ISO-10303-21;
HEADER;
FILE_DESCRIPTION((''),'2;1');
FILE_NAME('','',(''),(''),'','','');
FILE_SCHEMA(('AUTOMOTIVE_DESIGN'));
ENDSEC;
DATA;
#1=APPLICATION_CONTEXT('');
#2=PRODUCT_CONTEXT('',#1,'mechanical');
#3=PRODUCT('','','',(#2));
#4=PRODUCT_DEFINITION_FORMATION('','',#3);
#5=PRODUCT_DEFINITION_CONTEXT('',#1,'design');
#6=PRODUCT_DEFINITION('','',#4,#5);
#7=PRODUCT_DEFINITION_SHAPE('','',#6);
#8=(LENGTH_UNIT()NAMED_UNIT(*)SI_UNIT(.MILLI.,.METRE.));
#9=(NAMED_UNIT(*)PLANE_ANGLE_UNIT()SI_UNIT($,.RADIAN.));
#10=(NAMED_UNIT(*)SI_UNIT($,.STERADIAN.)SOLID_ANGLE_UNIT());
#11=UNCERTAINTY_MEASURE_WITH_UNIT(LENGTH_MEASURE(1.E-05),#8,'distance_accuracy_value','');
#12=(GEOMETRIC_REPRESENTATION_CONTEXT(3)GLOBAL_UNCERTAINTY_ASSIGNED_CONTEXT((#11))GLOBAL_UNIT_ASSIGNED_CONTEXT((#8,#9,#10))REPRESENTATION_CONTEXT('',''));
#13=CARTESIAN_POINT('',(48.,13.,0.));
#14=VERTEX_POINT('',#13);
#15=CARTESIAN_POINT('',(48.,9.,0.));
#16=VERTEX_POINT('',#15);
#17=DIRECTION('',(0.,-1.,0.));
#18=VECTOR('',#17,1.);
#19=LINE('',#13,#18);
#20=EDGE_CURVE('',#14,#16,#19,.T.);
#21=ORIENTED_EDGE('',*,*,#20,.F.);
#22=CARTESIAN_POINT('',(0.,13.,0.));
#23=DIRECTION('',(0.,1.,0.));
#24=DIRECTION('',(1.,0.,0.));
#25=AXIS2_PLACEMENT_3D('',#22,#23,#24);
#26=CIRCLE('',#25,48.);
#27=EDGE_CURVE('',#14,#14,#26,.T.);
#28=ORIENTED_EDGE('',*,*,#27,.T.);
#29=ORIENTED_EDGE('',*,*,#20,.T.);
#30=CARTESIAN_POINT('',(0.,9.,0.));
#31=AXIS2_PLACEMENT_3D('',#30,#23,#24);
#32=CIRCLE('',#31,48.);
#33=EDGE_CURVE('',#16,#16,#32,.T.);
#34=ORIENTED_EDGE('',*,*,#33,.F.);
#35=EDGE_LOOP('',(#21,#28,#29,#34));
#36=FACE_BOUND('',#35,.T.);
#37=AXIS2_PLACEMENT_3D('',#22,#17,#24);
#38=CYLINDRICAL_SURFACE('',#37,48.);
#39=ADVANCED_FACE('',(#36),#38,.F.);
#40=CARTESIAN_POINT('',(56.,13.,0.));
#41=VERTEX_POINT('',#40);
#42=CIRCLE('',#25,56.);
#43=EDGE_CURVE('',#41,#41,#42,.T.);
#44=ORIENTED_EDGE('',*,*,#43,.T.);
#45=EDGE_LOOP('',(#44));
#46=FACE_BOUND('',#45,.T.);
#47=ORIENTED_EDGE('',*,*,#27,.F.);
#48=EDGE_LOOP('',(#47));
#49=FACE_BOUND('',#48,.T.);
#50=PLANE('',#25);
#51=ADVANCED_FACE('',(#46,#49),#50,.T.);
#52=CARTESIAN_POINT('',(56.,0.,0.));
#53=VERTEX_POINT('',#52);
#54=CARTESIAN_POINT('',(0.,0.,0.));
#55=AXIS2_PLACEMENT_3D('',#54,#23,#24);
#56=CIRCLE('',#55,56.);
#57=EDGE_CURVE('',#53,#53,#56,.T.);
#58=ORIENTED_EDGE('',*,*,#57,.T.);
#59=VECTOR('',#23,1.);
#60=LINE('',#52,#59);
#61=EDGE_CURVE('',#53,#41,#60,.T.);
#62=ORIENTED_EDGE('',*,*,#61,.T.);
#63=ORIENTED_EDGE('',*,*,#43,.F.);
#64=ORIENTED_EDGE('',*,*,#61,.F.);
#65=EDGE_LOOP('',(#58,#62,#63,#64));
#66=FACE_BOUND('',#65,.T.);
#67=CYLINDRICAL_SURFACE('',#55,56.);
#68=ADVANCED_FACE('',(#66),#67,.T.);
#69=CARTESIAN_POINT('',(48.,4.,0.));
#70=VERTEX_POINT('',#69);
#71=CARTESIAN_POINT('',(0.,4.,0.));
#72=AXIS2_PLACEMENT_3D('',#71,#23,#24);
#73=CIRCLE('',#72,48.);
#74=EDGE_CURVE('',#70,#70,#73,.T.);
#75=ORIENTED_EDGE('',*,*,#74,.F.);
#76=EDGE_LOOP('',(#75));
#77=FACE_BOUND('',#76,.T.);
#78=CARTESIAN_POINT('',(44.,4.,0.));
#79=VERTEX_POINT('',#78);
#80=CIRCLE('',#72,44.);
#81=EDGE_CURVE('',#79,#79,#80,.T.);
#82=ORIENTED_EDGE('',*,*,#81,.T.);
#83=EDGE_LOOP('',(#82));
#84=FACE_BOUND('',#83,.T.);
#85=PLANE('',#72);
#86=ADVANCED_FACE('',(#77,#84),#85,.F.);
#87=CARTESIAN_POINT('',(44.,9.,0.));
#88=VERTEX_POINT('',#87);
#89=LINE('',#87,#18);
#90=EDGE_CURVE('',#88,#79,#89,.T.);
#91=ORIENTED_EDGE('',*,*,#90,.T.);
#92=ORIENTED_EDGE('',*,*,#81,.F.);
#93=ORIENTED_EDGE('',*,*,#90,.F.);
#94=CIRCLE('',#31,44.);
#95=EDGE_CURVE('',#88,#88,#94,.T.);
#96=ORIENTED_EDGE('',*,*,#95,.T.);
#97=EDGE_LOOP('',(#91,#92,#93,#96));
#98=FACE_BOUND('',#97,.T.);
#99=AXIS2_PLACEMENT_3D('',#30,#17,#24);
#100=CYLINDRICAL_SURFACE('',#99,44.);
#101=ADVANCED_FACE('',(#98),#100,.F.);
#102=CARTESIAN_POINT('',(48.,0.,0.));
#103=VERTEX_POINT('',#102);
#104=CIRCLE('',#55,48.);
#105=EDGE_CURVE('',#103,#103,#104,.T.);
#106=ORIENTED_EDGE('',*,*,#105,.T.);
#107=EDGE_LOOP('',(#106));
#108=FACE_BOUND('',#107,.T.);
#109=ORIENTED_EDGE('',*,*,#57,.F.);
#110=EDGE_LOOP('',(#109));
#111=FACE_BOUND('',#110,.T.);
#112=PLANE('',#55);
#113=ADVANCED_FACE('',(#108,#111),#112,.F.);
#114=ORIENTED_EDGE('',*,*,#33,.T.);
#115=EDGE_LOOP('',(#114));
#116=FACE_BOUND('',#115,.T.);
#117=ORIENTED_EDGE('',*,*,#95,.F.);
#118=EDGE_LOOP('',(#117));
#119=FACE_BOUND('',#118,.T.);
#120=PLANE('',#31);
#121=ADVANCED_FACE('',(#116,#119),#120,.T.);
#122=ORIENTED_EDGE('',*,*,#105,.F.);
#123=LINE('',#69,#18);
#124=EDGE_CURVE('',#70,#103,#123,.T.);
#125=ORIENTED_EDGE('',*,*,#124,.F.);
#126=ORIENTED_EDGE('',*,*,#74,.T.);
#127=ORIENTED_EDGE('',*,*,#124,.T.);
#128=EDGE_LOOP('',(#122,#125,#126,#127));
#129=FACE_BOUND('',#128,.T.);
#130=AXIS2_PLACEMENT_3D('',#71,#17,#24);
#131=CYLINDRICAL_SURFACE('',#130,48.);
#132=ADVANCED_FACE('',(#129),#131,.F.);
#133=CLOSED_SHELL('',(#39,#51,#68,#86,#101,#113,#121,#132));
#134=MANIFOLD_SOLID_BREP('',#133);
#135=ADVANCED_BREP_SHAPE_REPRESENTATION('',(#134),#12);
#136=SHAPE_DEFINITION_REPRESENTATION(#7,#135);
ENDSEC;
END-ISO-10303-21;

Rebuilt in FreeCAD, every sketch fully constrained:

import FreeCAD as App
import Part
import Sketcher

V = App.Vector


def add_polygon(sketch, points):
    """Adds a closed chain of lines whose ends are joined by coincident constraints."""
    first, n = sketch.GeometryCount, len(points)
    for a, b in zip(points, points[1:] + points[:1]):
        sketch.addGeometry(Part.LineSegment(App.Vector(*a, 0), App.Vector(*b, 0)), False)
    for i in range(n):
        sketch.addConstraint(Sketcher.Constraint("Coincident", first + i, 2, first + (i + 1) % n, 1))

doc = App.newDocument("Part")
body = doc.addObject("PartDesign::Body", "Body")

# Sketch on XY plane
sketch1 = body.newObject("Sketcher::SketchObject", "Sketch")
sketch1.AttachmentSupport = (doc.getObject("XY_Plane"), [""])
sketch1.MapMode = "FlatFace"
add_polygon(sketch1, [(48, 0), (56, 0), (56, 13), (48, 13), (48, 9), (44, 9), (44, 4), (48, 4)])  # lines 0-7
sketch1.addConstraint(Sketcher.Constraint("Horizontal", 0))
sketch1.addConstraint(Sketcher.Constraint("Vertical", 1))
sketch1.addConstraint(Sketcher.Constraint("Horizontal", 2))
sketch1.addConstraint(Sketcher.Constraint("Vertical", 3))
sketch1.addConstraint(Sketcher.Constraint("Horizontal", 4))
sketch1.addConstraint(Sketcher.Constraint("Vertical", 5))
sketch1.addConstraint(Sketcher.Constraint("Horizontal", 6))
sketch1.addConstraint(Sketcher.Constraint("Vertical", 7))
sketch1.addConstraint(Sketcher.Constraint("PointOnObject", 0, 2, -1))
sketch1.addConstraint(Sketcher.Constraint("Vertical", 3, 2, 6, 2))
sketch1.addConstraint(Sketcher.Constraint("Equal", 6, 3))
sketch1.addConstraint(Sketcher.Constraint("Equal", 3, 7))
sketch1.addConstraint(Sketcher.Constraint("DistanceX", 0, 1, 0, 2, 8.0))
sketch1.addConstraint(Sketcher.Constraint("DistanceX", 4, 2, 4, 1, 4.0))
sketch1.addConstraint(Sketcher.Constraint("DistanceY", 1, 1, 1, 2, 13.0))
sketch1.addConstraint(Sketcher.Constraint("DistanceX", -1, 1, 0, 2, 56.0))
revolution = body.newObject("PartDesign::Revolution", "Revolution")
revolution.Profile = sketch1
revolution.ReferenceAxis = (sketch1, ["V_Axis"])
revolution.Angle = 360

doc.recompute()
